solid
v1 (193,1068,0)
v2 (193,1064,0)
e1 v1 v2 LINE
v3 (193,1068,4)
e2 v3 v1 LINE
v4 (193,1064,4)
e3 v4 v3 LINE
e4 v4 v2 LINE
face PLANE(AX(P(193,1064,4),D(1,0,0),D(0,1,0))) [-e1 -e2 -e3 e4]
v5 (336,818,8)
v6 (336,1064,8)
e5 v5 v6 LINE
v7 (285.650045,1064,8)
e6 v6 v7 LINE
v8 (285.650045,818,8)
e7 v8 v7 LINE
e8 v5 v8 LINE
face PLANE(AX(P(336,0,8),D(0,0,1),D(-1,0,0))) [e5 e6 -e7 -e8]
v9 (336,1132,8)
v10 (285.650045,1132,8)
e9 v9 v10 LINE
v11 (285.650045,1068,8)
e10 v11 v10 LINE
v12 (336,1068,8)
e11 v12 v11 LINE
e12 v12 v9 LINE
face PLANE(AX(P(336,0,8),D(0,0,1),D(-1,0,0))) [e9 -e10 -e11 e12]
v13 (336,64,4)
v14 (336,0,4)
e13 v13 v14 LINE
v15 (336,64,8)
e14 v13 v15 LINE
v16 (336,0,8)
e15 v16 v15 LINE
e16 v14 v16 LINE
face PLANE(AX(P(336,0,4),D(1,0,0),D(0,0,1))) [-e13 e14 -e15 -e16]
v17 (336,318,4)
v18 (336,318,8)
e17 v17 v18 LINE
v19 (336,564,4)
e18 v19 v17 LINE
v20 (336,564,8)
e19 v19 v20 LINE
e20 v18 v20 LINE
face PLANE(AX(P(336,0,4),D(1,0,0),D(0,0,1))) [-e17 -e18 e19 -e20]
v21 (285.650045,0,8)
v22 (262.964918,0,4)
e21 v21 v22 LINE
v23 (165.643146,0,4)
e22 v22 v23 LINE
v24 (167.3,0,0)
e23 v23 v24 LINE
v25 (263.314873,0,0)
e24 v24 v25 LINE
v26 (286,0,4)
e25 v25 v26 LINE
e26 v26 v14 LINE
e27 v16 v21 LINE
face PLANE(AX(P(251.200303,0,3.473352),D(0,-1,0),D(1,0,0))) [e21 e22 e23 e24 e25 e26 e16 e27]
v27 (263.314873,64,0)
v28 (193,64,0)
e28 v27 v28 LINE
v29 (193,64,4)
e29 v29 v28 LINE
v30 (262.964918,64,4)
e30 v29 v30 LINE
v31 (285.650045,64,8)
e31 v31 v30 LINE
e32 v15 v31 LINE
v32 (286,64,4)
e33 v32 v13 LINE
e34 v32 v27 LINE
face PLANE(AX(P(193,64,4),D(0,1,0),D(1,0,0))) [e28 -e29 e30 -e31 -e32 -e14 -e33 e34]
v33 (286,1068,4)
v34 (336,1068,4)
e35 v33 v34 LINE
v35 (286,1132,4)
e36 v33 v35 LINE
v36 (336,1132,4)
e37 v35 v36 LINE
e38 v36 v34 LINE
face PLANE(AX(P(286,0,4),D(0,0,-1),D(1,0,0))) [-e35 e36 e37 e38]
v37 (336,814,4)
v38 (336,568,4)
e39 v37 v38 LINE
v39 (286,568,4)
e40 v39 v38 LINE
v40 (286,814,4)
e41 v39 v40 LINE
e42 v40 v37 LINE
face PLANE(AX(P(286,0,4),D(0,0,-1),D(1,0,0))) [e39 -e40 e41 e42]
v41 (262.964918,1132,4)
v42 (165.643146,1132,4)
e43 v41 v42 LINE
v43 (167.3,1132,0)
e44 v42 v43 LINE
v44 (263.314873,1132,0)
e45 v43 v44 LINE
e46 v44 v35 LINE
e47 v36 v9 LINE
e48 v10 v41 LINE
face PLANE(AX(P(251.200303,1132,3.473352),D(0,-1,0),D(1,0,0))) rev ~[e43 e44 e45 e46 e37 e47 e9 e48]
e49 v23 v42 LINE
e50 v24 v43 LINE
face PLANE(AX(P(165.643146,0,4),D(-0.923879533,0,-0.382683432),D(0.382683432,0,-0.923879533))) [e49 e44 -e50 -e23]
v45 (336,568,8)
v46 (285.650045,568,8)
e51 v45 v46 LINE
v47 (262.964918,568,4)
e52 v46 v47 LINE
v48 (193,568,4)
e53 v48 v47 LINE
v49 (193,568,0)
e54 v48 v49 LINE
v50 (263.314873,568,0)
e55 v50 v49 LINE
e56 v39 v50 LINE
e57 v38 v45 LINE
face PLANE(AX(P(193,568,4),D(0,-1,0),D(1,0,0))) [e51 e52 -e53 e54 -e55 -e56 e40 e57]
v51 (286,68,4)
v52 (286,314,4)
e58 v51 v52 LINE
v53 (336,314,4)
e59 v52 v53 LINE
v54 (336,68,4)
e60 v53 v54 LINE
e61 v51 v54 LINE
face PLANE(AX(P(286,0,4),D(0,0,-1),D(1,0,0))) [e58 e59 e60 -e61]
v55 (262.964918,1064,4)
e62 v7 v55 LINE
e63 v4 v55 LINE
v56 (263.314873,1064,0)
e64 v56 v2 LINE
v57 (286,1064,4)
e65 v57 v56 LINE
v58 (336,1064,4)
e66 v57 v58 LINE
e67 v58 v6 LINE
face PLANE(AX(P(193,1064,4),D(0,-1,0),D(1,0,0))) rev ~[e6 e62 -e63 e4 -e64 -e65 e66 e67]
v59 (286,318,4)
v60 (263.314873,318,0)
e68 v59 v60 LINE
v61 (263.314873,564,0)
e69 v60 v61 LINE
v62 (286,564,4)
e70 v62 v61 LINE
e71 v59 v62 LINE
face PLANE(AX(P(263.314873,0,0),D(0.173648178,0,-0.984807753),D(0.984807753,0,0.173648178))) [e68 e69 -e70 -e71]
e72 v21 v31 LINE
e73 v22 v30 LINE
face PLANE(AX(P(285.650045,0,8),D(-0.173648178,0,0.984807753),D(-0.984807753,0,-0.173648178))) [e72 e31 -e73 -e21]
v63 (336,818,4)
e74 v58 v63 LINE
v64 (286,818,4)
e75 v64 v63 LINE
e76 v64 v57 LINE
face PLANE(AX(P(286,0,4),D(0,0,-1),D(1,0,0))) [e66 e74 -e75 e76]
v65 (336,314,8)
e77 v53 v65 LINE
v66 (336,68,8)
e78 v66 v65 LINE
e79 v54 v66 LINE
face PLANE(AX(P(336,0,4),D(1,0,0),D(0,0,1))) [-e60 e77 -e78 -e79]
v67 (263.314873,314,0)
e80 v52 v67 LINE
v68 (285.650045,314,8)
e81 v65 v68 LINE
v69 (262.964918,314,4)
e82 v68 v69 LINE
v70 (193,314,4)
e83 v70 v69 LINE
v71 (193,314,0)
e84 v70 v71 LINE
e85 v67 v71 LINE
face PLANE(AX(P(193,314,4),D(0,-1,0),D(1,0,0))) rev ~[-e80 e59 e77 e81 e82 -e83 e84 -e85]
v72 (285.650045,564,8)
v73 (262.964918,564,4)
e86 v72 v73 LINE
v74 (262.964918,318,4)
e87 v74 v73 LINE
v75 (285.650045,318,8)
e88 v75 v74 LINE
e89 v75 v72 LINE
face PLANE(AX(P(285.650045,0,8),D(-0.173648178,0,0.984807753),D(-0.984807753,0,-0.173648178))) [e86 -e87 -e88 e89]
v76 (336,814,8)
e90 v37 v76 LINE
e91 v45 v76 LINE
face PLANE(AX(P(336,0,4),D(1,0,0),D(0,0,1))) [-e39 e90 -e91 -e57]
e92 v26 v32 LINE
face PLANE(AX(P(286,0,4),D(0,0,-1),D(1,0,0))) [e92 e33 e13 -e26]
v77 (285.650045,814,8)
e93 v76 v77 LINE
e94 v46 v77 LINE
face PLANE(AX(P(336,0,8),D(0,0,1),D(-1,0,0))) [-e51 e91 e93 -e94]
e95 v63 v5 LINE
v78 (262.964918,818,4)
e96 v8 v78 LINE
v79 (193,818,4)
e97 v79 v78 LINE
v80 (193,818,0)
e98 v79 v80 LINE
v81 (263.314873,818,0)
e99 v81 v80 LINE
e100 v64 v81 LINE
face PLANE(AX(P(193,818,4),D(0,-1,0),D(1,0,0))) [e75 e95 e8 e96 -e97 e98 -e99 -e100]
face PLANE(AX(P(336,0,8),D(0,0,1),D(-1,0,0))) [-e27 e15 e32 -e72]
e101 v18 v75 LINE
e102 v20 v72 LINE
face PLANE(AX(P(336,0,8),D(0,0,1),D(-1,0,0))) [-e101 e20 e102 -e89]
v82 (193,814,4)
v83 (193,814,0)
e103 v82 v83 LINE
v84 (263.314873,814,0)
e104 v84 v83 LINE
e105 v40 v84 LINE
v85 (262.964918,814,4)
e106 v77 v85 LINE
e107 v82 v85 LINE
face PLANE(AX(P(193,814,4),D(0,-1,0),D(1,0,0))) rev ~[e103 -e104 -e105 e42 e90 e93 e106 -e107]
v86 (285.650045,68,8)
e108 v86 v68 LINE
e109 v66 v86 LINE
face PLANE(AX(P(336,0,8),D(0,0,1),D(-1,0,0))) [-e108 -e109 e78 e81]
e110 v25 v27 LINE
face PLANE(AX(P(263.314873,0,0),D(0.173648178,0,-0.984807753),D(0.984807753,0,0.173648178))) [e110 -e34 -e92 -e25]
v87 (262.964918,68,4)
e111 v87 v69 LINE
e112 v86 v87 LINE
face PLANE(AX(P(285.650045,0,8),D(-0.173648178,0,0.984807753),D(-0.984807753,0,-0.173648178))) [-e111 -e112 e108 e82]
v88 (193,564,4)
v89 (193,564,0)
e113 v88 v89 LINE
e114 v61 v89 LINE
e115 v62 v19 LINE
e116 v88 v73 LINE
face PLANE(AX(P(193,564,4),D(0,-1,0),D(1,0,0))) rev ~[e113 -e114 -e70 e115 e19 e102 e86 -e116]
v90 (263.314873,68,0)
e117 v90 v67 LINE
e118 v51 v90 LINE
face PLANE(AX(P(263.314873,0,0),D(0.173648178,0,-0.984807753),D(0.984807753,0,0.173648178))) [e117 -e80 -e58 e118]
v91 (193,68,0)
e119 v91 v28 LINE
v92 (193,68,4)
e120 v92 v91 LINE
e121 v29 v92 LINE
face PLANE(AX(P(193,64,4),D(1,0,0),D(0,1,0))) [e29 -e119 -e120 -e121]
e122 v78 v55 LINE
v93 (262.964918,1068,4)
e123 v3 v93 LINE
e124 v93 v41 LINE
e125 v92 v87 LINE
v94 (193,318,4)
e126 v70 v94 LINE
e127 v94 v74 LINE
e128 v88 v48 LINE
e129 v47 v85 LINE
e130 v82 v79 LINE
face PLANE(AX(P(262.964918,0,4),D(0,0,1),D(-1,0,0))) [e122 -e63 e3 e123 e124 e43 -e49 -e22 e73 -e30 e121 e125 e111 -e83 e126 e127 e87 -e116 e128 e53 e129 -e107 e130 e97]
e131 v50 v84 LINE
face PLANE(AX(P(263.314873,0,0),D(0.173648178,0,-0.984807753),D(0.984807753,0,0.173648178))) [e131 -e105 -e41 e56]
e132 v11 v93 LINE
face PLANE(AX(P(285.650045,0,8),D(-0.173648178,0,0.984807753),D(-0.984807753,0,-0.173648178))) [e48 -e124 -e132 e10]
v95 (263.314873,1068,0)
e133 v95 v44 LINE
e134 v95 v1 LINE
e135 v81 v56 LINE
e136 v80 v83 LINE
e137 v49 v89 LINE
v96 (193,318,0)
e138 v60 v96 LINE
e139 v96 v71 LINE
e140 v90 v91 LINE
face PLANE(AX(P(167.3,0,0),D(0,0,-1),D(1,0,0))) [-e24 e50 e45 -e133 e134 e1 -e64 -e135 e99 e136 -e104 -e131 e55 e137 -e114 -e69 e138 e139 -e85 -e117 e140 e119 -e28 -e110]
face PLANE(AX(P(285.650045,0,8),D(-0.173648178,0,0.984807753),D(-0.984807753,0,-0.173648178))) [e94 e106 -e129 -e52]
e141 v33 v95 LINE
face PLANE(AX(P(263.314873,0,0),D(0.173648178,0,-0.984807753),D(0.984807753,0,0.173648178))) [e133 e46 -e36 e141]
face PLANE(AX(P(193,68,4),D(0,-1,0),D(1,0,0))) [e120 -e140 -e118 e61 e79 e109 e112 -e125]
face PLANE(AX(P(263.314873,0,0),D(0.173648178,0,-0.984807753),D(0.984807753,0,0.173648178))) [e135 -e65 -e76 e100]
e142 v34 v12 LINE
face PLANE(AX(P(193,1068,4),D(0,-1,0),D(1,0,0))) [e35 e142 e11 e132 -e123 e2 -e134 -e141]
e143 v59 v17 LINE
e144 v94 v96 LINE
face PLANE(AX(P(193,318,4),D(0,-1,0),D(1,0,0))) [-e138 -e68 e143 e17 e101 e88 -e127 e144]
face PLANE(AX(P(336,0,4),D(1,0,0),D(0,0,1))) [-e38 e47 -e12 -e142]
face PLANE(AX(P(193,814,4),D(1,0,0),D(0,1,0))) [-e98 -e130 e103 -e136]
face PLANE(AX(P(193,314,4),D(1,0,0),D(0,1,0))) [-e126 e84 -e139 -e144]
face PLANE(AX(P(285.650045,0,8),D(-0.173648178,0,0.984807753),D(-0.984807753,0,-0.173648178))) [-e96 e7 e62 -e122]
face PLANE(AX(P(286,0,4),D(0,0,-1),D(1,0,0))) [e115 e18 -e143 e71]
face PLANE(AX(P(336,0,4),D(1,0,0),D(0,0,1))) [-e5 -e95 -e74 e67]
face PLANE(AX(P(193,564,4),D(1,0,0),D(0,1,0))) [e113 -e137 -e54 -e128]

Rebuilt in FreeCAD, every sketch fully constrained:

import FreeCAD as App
import Part
import Sketcher

V = App.Vector
Q = App.Units.Quantity

doc = App.newDocument("Part")
body = doc.addObject("PartDesign::Body", "Body")

# Sketch on XZ plane
sketch1 = body.newObject("Sketcher::SketchObject", "Sketch")
sketch1.AttachmentSupport = (doc.getObject("XZ_Plane"), [""])
sketch1.MapMode = "FlatFace"
sketch1.addGeometry(Part.LineSegment(V(286, 4, 0), V(336, 4, 0)), False)
sketch1.addGeometry(Part.LineSegment(V(336, 4, 0), V(336, 8, 0)), False)
sketch1.addGeometry(Part.LineSegment(V(336, 8, 0), V(285.650045, 8, 0)), False)
sketch1.addGeometry(Part.LineSegment(V(285.650045, 8, 0), V(262.964918, 4, 0)), False)
sketch1.addGeometry(Part.LineSegment(V(262.964918, 4, 0), V(165.643146, 4, 0)), False)
sketch1.addGeometry(Part.LineSegment(V(165.643146, 4, 0), V(167.3, 0, 0)), False)
sketch1.addGeometry(Part.LineSegment(V(167.3, 0, 0), V(263.314873, 0, 0)), False)
sketch1.addGeometry(Part.LineSegment(V(263.314873, 0, 0), V(286, 4, 0)), False)
sketch1.addConstraint(Sketcher.Constraint("Coincident", 0, 2, 1, 1))
sketch1.addConstraint(Sketcher.Constraint("Coincident", 1, 2, 2, 1))
sketch1.addConstraint(Sketcher.Constraint("Coincident", 2, 2, 3, 1))
sketch1.addConstraint(Sketcher.Constraint("Coincident", 3, 2, 4, 1))
sketch1.addConstraint(Sketcher.Constraint("Coincident", 4, 2, 5, 1))
sketch1.addConstraint(Sketcher.Constraint("Coincident", 5, 2, 6, 1))
sketch1.addConstraint(Sketcher.Constraint("Coincident", 6, 2, 7, 1))
sketch1.addConstraint(Sketcher.Constraint("Coincident", 7, 2, 0, 1))
sketch1.addConstraint(Sketcher.Constraint("Horizontal", 0))
sketch1.addConstraint(Sketcher.Constraint("Vertical", 1))
sketch1.addConstraint(Sketcher.Constraint("Horizontal", 2))
sketch1.addConstraint(Sketcher.Constraint("Horizontal", 4))
sketch1.addConstraint(Sketcher.Constraint("Horizontal", 6))
sketch1.addConstraint(Sketcher.Constraint("PointOnObject", 5, 2, -1))
sketch1.addConstraint(Sketcher.Constraint("Parallel", 3, 7))
sketch1.addConstraint(Sketcher.Constraint("Horizontal", 0, 2, 3, 2))
sketch1.addConstraint(Sketcher.Constraint("Equal", 3, 7))
sketch1.addConstraint(Sketcher.Constraint("DistanceX", 0, 1, 0, 2, Q("50 mm")))
sketch1.addConstraint(Sketcher.Constraint("DistanceY", 1, 1, 1, 2, Q("4 mm")))
sketch1.addConstraint(Sketcher.Constraint("Angle", 3, Q("-170 deg")))
sketch1.addConstraint(Sketcher.Constraint("DistanceX", -1, 1, 0, 2, Q("336 mm")))
sketch1.addConstraint(Sketcher.Constraint("Angle", 5, Q("-67.5 deg")))
sketch1.addConstraint(Sketcher.Constraint("DistanceX", -1, 1, 5, 2, Q("167.3 mm")))
sketch1.addConstraint(Sketcher.Constraint("DistanceX", 4, 2, 2, 2, Q("120.0069 mm")))
pad1 = body.newObject("PartDesign::Pad", "Pad")
pad1.Profile = sketch1
pad1.Length = 1132
pad1.Reversed = True

# Sketch on XY plane
sketch2 = body.newObject("Sketcher::SketchObject", "Sketch001")
sketch2.AttachmentSupport = (doc.getObject("XY_Plane"), [""])
sketch2.MapMode = "FlatFace"
sketch2.AttachmentOffset = App.Placement(V(0, 0, 4), App.Rotation())
sketch2.addGeometry(Part.LineSegment(V(193, 68, 0), V(193, 64, 0)), False)
sketch2.addGeometry(Part.LineSegment(V(193, 64, 0), V(336, 64, 0)), False)
sketch2.addGeometry(Part.LineSegment(V(336, 64, 0), V(336, 68, 0)), False)
sketch2.addGeometry(Part.LineSegment(V(336, 68, 0), V(193, 68, 0)), False)
sketch2.addGeometry(Part.LineSegment(V(193, 318, 0), V(193, 314, 0)), False)
sketch2.addGeometry(Part.LineSegment(V(193, 314, 0), V(336, 314, 0)), False)
sketch2.addGeometry(Part.LineSegment(V(336, 314, 0), V(336, 318, 0)), False)
sketch2.addGeometry(Part.LineSegment(V(336, 318, 0), V(193, 318, 0)), False)
sketch2.addGeometry(Part.LineSegment(V(193, 568, 0), V(193, 564, 0)), False)
sketch2.addGeometry(Part.LineSegment(V(193, 564, 0), V(336, 564, 0)), False)
sketch2.addGeometry(Part.LineSegment(V(336, 564, 0), V(336, 568, 0)), False)
sketch2.addGeometry(Part.LineSegment(V(336, 568, 0), V(193, 568, 0)), False)
sketch2.addGeometry(Part.LineSegment(V(193, 818, 0), V(193, 814, 0)), False)
sketch2.addGeometry(Part.LineSegment(V(193, 814, 0), V(336, 814, 0)), False)
sketch2.addGeometry(Part.LineSegment(V(336, 814, 0), V(336, 818, 0)), False)
sketch2.addGeometry(Part.LineSegment(V(336, 818, 0), V(193, 818, 0)), False)
sketch2.addGeometry(Part.LineSegment(V(193, 1068, 0), V(193, 1064, 0)), False)
sketch2.addGeometry(Part.LineSegment(V(193, 1064, 0), V(336, 1064, 0)), False)
sketch2.addGeometry(Part.LineSegment(V(336, 1064, 0), V(336, 1068, 0)), False)
sketch2.addGeometry(Part.LineSegment(V(336, 1068, 0), V(193, 1068, 0)), False)
sketch2.addConstraint(Sketcher.Constraint("Coincident", 0, 2, 1, 1))
sketch2.addConstraint(Sketcher.Constraint("Coincident", 1, 2, 2, 1))
sketch2.addConstraint(Sketcher.Constraint("Coincident", 2, 2, 3, 1))
sketch2.addConstraint(Sketcher.Constraint("Coincident", 3, 2, 0, 1))
sketch2.addConstraint(Sketcher.Constraint("Coincident", 4, 2, 5, 1))
sketch2.addConstraint(Sketcher.Constraint("Coincident", 5, 2, 6, 1))
sketch2.addConstraint(Sketcher.Constraint("Coincident", 6, 2, 7, 1))
sketch2.addConstraint(Sketcher.Constraint("Coincident", 7, 2, 4, 1))
sketch2.addConstraint(Sketcher.Constraint("Coincident", 8, 2, 9, 1))
sketch2.addConstraint(Sketcher.Constraint("Coincident", 9, 2, 10, 1))
sketch2.addConstraint(Sketcher.Constraint("Coincident", 10, 2, 11, 1))
sketch2.addConstraint(Sketcher.Constraint("Coincident", 11, 2, 8, 1))
sketch2.addConstraint(Sketcher.Constraint("Coincident", 12, 2, 13, 1))
sketch2.addConstraint(Sketcher.Constraint("Coincident", 13, 2, 14, 1))
sketch2.addConstraint(Sketcher.Constraint("Coincident", 14, 2, 15, 1))
sketch2.addConstraint(Sketcher.Constraint("Coincident", 15, 2, 12, 1))
sketch2.addConstraint(Sketcher.Constraint("Coincident", 16, 2, 17, 1))
sketch2.addConstraint(Sketcher.Constraint("Coincident", 17, 2, 18, 1))
sketch2.addConstraint(Sketcher.Constraint("Coincident", 18, 2, 19, 1))
sketch2.addConstraint(Sketcher.Constraint("Coincident", 19, 2, 16, 1))
sketch2.addConstraint(Sketcher.Constraint("Vertical", 0))
sketch2.addConstraint(Sketcher.Constraint("Horizontal", 1))
sketch2.addConstraint(Sketcher.Constraint("Vertical", 2))
sketch2.addConstraint(Sketcher.Constraint("Horizontal", 3))
sketch2.addConstraint(Sketcher.Constraint("Vertical", 4))
sketch2.addConstraint(Sketcher.Constraint("Horizontal", 5))
sketch2.addConstraint(Sketcher.Constraint("Vertical", 6))
sketch2.addConstraint(Sketcher.Constraint("Horizontal", 7))
sketch2.addConstraint(Sketcher.Constraint("Vertical", 8))
sketch2.addConstraint(Sketcher.Constraint("Horizontal", 9))
sketch2.addConstraint(Sketcher.Constraint("Vertical", 10))
sketch2.addConstraint(Sketcher.Constraint("Horizontal", 11))
sketch2.addConstraint(Sketcher.Constraint("Vertical", 12))
sketch2.addConstraint(Sketcher.Constraint("Horizontal", 13))
sketch2.addConstraint(Sketcher.Constraint("Vertical", 14))
sketch2.addConstraint(Sketcher.Constraint("Horizontal", 15))
sketch2.addConstraint(Sketcher.Constraint("Vertical", 16))
sketch2.addConstraint(Sketcher.Constraint("Horizontal", 17))
sketch2.addConstraint(Sketcher.Constraint("Vertical", 18))
sketch2.addConstraint(Sketcher.Constraint("Horizontal", 19))
sketch2.addConstraint(Sketcher.Constraint("Vertical", 3, 2, 4, 2))
sketch2.addConstraint(Sketcher.Constraint("Vertical", 2, 2, 5, 2))
sketch2.addConstraint(Sketcher.Constraint("Vertical", 7, 2, 8, 2))
sketch2.addConstraint(Sketcher.Constraint("Vertical", 6, 2, 9, 2))
sketch2.addConstraint(Sketcher.Constraint("Vertical", 11, 2, 12, 2))
sketch2.addConstraint(Sketcher.Constraint("Vertical", 10, 2, 13, 2))
sketch2.addConstraint(Sketcher.Constraint("Vertical", 15, 2, 16, 2))
sketch2.addConstraint(Sketcher.Constraint("Vertical", 14, 2, 17, 2))
sketch2.addConstraint(Sketcher.Constraint("Equal", 2, 4))
sketch2.addConstraint(Sketcher.Constraint("Equal", 6, 8))
sketch2.addConstraint(Sketcher.Constraint("Equal", 10, 12))
sketch2.addConstraint(Sketcher.Constraint("Equal", 14, 16))
sketch2.addConstraint(Sketcher.Constraint("DistanceX", 1, 1, 1, 2, Q("143 mm")))
sketch2.addConstraint(Sketcher.Constraint("DistanceY", 0, 2, 0, 1, Q("4 mm")))
sketch2.addConstraint(Sketcher.Constraint("DistanceX", -1, 1, 0, 2, Q("193 mm")))
sketch2.addConstraint(Sketcher.Constraint("DistanceY", -1, 1, 0, 2, Q("64 mm")))
sketch2.addConstraint(Sketcher.Constraint("DistanceY", -1, 1, 4, 2, Q("314 mm")))
sketch2.addConstraint(Sketcher.Constraint("DistanceY", -1, 1, 8, 2, Q("564 mm")))
sketch2.addConstraint(Sketcher.Constraint("DistanceY", -1, 1, 12, 2, Q("814 mm")))
sketch2.addConstraint(Sketcher.Constraint("DistanceY", -1, 1, 16, 2, Q("1064 mm")))
pocket1 = body.newObject("PartDesign::Pocket", "Pocket")
pocket1.Profile = sketch2
pocket1.Type = "ThroughAll"
pocket1.Midplane = True

doc.recompute()
